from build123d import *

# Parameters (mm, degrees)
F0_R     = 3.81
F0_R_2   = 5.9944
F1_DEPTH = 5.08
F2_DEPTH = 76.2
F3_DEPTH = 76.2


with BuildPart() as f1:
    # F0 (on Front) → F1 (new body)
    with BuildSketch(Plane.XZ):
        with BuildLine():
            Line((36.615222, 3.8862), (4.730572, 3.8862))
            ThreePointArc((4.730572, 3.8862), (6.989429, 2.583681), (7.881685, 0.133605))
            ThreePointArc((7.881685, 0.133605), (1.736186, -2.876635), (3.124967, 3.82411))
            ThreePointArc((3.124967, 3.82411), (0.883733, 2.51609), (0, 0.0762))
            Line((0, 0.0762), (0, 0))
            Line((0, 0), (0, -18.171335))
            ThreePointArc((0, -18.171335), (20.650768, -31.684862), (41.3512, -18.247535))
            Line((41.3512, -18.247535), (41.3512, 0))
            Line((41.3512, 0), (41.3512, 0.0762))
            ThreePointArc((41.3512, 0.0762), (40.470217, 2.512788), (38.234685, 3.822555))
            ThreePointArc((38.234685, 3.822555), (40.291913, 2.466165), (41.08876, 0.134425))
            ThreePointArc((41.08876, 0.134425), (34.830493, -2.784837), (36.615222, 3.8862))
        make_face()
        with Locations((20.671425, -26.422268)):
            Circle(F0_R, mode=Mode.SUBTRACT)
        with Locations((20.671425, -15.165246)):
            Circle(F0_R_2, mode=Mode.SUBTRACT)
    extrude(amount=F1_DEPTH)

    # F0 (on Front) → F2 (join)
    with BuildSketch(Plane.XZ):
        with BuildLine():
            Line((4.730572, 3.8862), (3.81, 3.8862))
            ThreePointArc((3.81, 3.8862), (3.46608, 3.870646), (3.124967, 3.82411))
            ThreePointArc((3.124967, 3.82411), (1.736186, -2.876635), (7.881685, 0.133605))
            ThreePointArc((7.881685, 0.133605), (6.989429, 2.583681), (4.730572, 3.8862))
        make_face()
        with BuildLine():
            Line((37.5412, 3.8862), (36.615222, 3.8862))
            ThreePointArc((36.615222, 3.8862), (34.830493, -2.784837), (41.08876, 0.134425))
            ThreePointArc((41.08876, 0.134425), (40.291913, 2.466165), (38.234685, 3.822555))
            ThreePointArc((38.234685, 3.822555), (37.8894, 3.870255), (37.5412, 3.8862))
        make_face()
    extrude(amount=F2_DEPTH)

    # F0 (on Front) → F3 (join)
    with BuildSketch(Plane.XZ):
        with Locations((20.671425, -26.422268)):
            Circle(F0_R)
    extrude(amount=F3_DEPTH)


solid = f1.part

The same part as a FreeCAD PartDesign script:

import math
import FreeCAD as App
import Part
import Sketcher
from FreeCAD import Vector
Q = App.Units.Quantity

doc = App.newDocument("Part")
body = doc.addObject("PartDesign::Body", "Body")

sketch1 = body.newObject("Sketcher::SketchObject", "Sketch")
sketch1.AttachmentSupport = (doc.getObject("XZ_Plane"), [""])
sketch1.MapMode = "FlatFace"
sketch1.addGeometry([
    Part.LineSegment(Vector(36.6, 3.9, 0), Vector(4.7, 3.9, 0)),
    Part.ArcOfCircle(Part.Circle(Vector(4.1, 0.1, 0), Vector(0, 0, 1), 3.8), math.radians(0), math.radians(80)),
    Part.ArcOfCircle(Part.Circle(Vector(4.1, 0.1, 0), Vector(0, 0, 1), 3.8), math.radians(104), math.radians(360)),
    Part.ArcOfCircle(Part.Circle(Vector(3.8, 0.1, 0), Vector(0, 0, 1), 3.8), math.radians(100), math.radians(180)),
    Part.LineSegment(Vector(0, 0.1, 0), Vector(0, -18.2, 0)),
    Part.ArcOfCircle(Part.Circle(Vector(20.7, -9.1, 0), Vector(0, 0, 1), 22.6), math.radians(-156), math.radians(-24)),
    Part.LineSegment(Vector(41.4, -18.2, 0), Vector(41.4, 0.1, 0)),
    Part.ArcOfCircle(Part.Circle(Vector(37.5, 0.1, 0), Vector(0, 0, 1), 3.8), math.radians(0), math.radians(80)),
    Part.ArcOfCircle(Part.Circle(Vector(37.3, 0.1, 0), Vector(0, 0, 1), 3.8), math.radians(0), math.radians(75)),
    Part.ArcOfCircle(Part.Circle(Vector(37.3, 0.1, 0), Vector(0, 0, 1), 3.8), math.radians(100), math.radians(360)),
    Part.Circle(Vector(20.7, -26.4, 0), Vector(0, 0, 1), 3.8),
    Part.Circle(Vector(20.7, -15.2, 0), Vector(0, 0, 1), 6),
], False)
sketch1.addConstraint([
    Sketcher.Constraint("Coincident", 0, 2, 1, 2),
    Sketcher.Constraint("Tangent", 1, 1, 2, 2),
    Sketcher.Constraint("Coincident", 2, 1, 3, 1),
    Sketcher.Constraint("Tangent", 3, 2, 4, 1),
    Sketcher.Constraint("Coincident", 4, 2, 5, 1),
    Sketcher.Constraint("Coincident", 5, 2, 6, 1),
    Sketcher.Constraint("Tangent", 6, 2, 7, 1),
    Sketcher.Constraint("Coincident", 7, 2, 8, 2),
    Sketcher.Constraint("Tangent", 8, 1, 9, 2),
    Sketcher.Constraint("Coincident", 9, 1, 0, 1),
    Sketcher.Constraint("Horizontal", 0),
    Sketcher.Constraint("Vertical", 4),
    Sketcher.Constraint("Vertical", 6),
    Sketcher.Constraint("Equal", 1, 2),
    Sketcher.Constraint("Equal", 2, 3),
    Sketcher.Constraint("Equal", 3, 7),
    Sketcher.Constraint("Equal", 7, 8),
    Sketcher.Constraint("Equal", 7, 9),
    Sketcher.Constraint("Equal", 9, 10),
    Sketcher.Constraint("PointOnObject", 3, 2, -2),
    Sketcher.Constraint("Horizontal", 3, 3, 7, 3),
    Sketcher.Constraint("Horizontal", 2, 3, 1, 1),
    Sketcher.Constraint("Horizontal", 9, 3, 8, 1),
    Sketcher.Constraint("Vertical", 10, 3, 11, 3),
    Sketcher.Constraint("Diameter", 10, Q("0.3 in")),
    Sketcher.Constraint("Diameter", 11, Q("0.472 in")),
    Sketcher.Constraint("DistanceY", 3, 3, 0, 2, Q("0.15 in")),
    Sketcher.Constraint("DistanceY", -1, 1, 3, 3, Q("0.003 in")),
    Sketcher.Constraint("DistanceX", -1, 1, 7, 3, Q("1.4780001 in")),
    Sketcher.Constraint("Radius", 5, Q("22.599232 mm")),
    Sketcher.Constraint("DistanceX", 0, 2, 0, 1, Q("31.88465 mm")),
    Sketcher.Constraint("DistanceY", 10, 3, 5, 3, Q("17.3366 mm")),
    Sketcher.Constraint("DistanceY", 4, 2, 4, 1, Q("18.247535 mm")),
    Sketcher.Constraint("DistanceY", 6, 1, 6, 2, Q("18.323735 mm")),
    Sketcher.Constraint("DistanceX", -1, 1, 9, 3, Q("37.27876 mm")),
    Sketcher.Constraint("DistanceY", -1, 1, 2, 1, Q("3.82411 mm")),
    Sketcher.Constraint("DistanceY", 1, 3, 8, 3, Q("0.000821 mm")),
    Sketcher.Constraint("DistanceX", 2, 3, 10, 3, Q("16.59974 mm")),
    Sketcher.Constraint("DistanceY", 10, 3, 11, 3, Q("11.257022 mm")),
])
pad1 = body.newObject("PartDesign::Pad", "Pad")
pad1.Profile = sketch1
pad1.Length = Q("0.2 in")

sketch2 = body.newObject("Sketcher::SketchObject", "Sketch001")
sketch2.AttachmentSupport = (doc.getObject("XZ_Plane"), [""])
sketch2.MapMode = "FlatFace"
sketch2.addGeometry([
    Part.LineSegment(Vector(4.7, 3.9, 0), Vector(3.8, 3.9, 0)),
    Part.ArcOfCircle(Part.Circle(Vector(3.8, 0.1, 0), Vector(0, 0, 1), 3.8), math.radians(90), math.radians(100.36)),
    Part.ArcOfCircle(Part.Circle(Vector(4.1, 0.1, 0), Vector(0, 0, 1), 3.8), math.radians(104), math.radians(360)),
    Part.ArcOfCircle(Part.Circle(Vector(4.1, 0.1, 0), Vector(0, 0, 1), 3.8), math.radians(0), math.radians(80)),
    Part.LineSegment(Vector(37.5, 3.9, 0), Vector(36.6, 3.9, 0)),
    Part.ArcOfCircle(Part.Circle(Vector(37.3, 0.1, 0), Vector(0, 0, 1), 3.8), math.radians(100), math.radians(360)),
    Part.ArcOfCircle(Part.Circle(Vector(37.3, 0.1, 0), Vector(0, 0, 1), 3.8), math.radians(0), math.radians(75)),
    Part.ArcOfCircle(Part.Circle(Vector(37.5, 0.1, 0), Vector(0, 0, 1), 3.8), math.radians(79.51), math.radians(90)),
], False)
sketch2.addConstraint([
    Sketcher.Constraint("Tangent", 0, 2, 1, 1),
    Sketcher.Constraint("Coincident", 1, 2, 2, 1),
    Sketcher.Constraint("Tangent", 2, 2, 3, 1),
    Sketcher.Constraint("Coincident", 3, 2, 0, 1),
    Sketcher.Constraint("Coincident", 4, 2, 5, 1),
    Sketcher.Constraint("Tangent", 5, 2, 6, 1),
    Sketcher.Constraint("Coincident", 6, 2, 7, 1),
    Sketcher.Constraint("Coincident", 7, 2, 4, 1),
    Sketcher.Constraint("Horizontal", 0),
    Sketcher.Constraint("Horizontal", 4),
    Sketcher.Constraint("Equal", 2, 3),
    Sketcher.Constraint("Equal", 3, 5),
    Sketcher.Constraint("Equal", 3, 6),
    Sketcher.Constraint("Horizontal", 3, 3, 2, 2),
    Sketcher.Constraint("Horizontal", 3, 2, 4, 2),
    Sketcher.Constraint("Horizontal", 6, 3, 5, 2),
    Sketcher.Constraint("Radius", 2, Q("0.15 in")),
    Sketcher.Constraint("DistanceX", -1, 1, 1, 3, Q("0.1499998 in")),
    Sketcher.Constraint("DistanceY", -1, 1, 0, 2, Q("0.153 in")),
    Sketcher.Constraint("DistanceX", -1, 1, 7, 2, Q("1.478 in")),
    Sketcher.Constraint("DistanceX", 1, 3, 7, 3, Q("1.3279999 in")),
    Sketcher.Constraint("Radius", 1, Q("3.809948 mm")),
    Sketcher.Constraint("Radius", 7, Q("3.810063 mm")),
    Sketcher.Constraint("DistanceX", 4, 2, 4, 1, Q("0.925978 mm")),
    Sketcher.Constraint("DistanceX", 0, 2, 0, 1, Q("0.920572 mm")),
    Sketcher.Constraint("DistanceX", -1, 1, 5, 3, Q("37.27876 mm")),
    Sketcher.Constraint("DistanceY", -1, 1, 1, 2, Q("3.82411 mm")),
])
pad2 = body.newObject("PartDesign::Pad", "Pad001")
pad2.Profile = sketch2
pad2.Length = Q("3 in")

sketch3 = body.newObject("Sketcher::SketchObject", "Sketch002")
sketch3.AttachmentSupport = (doc.getObject("XZ_Plane"), [""])
sketch3.MapMode = "FlatFace"
sketch3.addGeometry(Part.Circle(Vector(20.7, -26.4, 0), Vector(0, 0, 1), 3.8), False)
sketch3.addConstraint([
    Sketcher.Constraint("Diameter", 0, Q("0.3 in")),
    Sketcher.Constraint("DistanceX", -1, 1, 0, 3, Q("20.671425 mm")),
    Sketcher.Constraint("DistanceY", 0, 3, -1, 1, Q("26.422268 mm")),
])
pad3 = body.newObject("PartDesign::Pad", "Pad002")
pad3.Profile = sketch3
pad3.Length = Q("3 in")

doc.recompute()
